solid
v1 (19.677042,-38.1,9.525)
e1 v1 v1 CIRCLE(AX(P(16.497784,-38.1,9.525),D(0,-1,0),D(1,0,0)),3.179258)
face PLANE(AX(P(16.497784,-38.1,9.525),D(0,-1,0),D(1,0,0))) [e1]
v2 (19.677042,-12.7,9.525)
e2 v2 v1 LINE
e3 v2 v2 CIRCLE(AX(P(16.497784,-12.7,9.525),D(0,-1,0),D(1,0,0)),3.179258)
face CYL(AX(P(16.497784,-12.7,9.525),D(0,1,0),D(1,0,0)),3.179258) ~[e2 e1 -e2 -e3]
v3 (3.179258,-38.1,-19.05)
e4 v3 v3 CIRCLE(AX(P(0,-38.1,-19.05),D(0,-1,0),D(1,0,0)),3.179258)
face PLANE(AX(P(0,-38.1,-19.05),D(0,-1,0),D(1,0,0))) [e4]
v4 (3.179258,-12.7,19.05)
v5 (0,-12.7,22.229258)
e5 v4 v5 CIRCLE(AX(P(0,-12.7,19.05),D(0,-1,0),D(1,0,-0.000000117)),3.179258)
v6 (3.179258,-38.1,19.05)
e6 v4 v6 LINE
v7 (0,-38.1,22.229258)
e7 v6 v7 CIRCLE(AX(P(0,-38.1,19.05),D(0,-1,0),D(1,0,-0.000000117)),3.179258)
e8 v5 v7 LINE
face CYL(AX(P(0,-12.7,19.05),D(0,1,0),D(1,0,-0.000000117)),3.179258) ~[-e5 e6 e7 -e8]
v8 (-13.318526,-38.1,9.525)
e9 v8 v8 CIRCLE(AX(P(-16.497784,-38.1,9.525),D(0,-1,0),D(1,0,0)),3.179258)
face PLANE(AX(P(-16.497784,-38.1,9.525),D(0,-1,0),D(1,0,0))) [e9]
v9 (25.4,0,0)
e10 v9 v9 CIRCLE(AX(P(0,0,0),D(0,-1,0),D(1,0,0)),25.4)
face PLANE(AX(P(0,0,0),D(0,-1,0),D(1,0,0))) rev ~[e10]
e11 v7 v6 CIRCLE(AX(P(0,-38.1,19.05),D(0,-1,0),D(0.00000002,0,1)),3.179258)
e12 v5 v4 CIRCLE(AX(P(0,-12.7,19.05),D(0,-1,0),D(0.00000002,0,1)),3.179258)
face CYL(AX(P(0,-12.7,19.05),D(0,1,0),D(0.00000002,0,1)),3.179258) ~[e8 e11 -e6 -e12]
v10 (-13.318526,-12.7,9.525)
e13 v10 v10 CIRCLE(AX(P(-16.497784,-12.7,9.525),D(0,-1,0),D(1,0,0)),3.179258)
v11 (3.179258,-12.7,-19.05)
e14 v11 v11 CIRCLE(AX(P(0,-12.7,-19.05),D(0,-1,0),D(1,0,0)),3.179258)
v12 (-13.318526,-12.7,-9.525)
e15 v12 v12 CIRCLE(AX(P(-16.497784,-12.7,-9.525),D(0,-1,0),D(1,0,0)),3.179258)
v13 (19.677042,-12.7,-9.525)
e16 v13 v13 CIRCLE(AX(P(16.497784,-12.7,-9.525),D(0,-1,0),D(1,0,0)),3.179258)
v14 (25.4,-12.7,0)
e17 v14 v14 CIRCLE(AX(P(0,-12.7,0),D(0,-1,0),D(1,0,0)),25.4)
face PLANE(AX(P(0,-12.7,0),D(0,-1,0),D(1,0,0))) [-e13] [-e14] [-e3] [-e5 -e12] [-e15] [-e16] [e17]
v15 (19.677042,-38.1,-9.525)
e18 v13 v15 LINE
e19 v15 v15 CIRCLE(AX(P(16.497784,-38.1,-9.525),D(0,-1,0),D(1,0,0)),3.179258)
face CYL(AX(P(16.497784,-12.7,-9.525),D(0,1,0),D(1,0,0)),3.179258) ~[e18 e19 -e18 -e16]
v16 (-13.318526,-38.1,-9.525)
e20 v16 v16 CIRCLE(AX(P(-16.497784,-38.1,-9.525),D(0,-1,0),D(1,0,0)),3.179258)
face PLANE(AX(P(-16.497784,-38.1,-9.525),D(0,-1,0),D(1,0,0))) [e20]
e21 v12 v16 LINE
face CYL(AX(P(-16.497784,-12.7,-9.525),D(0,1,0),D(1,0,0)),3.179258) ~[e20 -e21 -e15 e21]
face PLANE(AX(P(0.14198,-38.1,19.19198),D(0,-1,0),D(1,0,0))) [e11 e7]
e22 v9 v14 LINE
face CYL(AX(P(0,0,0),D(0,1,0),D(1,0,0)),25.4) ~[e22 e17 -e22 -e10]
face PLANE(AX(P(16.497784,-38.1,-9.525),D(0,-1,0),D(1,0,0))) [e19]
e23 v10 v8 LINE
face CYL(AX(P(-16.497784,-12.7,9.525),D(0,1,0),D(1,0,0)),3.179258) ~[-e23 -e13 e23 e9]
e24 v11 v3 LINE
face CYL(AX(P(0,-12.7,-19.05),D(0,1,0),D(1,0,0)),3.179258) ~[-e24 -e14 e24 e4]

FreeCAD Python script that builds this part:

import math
import FreeCAD as App
import Part
import Sketcher
from FreeCAD import Vector
Q = App.Units.Quantity

doc = App.newDocument("Part")
body = doc.addObject("PartDesign::Body", "Body")

# Sketch on XZ plane
sketch1 = body.newObject("Sketcher::SketchObject", "Sketch")
sketch1.AttachmentSupport = (doc.getObject("XZ_Plane"), [""])
sketch1.MapMode = "FlatFace"
sketch1.addGeometry(Part.Circle(Vector(0, 0, 0), Vector(0, 0, 1), 25.4), False)
sketch1.addConstraint([
    Sketcher.Constraint("Coincident", 0, 3, -1, 1),
    Sketcher.Constraint("Diameter", 0, Q("2 in")),
])
pad1 = body.newObject("PartDesign::Pad", "Pad")
pad1.Profile = sketch1
pad1.Length = Q("0.5 in")

# Sketch on XZ plane
sketch2 = body.newObject("Sketcher::SketchObject", "Sketch001")
sketch2.AttachmentSupport = (doc.getObject("XZ_Plane"), [""])
sketch2.MapMode = "FlatFace"
sketch2.AttachmentOffset = App.Placement(Vector(0, 0, 0.5 * 25.4), App.Rotation())
sketch2.addGeometry([
    Part.Circle(Vector(-16.497784, 9.525, 0), Vector(0, 0, 1), 3.179258),  # 0
    Part.ArcOfCircle(Part.Circle(Vector(0, 19.05, 0), Vector(0, 0, 1), 3.179258), math.radians(-0.000007), math.radians(90.000007)),  # 1
    Part.ArcOfCircle(Part.Circle(Vector(0, 19.05, 0), Vector(0, 0, 1), 3.179258), math.radians(89.999999), math.radians(360.000001)),  # 2
    Part.Circle(Vector(16.497784, 9.525, 0), Vector(0, 0, 1), 3.179258),  # 3
    Part.Circle(Vector(16.497784, -9.525, 0), Vector(0, 0, 1), 3.179258),  # 4
    Part.Circle(Vector(0, -19.05, 0), Vector(0, 0, 1), 3.179258),  # 5
    Part.Circle(Vector(-16.497784, -9.525, 0), Vector(0, 0, 1), 3.179258),  # 6
], False)
sketch2.addConstraint([
    Sketcher.Constraint("Tangent", 1, 1, 2, 2),
    Sketcher.Constraint("Coincident", 2, 1, 1, 2),
    Sketcher.Constraint("Equal", 0, 1),
    Sketcher.Constraint("Equal", 2, 3),
    Sketcher.Constraint("Equal", 3, 4),
    Sketcher.Constraint("Equal", 4, 5),
    Sketcher.Constraint("Equal", 5, 6),
    Sketcher.Constraint("Symmetric", 0, 3, 4, 3, -1, 1),
    Sketcher.Constraint("Symmetric", 1, 3, 5, 3, -1, 1),
    Sketcher.Constraint("Symmetric", 3, 3, 6, 3, -1, 1),
    Sketcher.Constraint("Symmetric", 0, 3, 3, 3, -2),
    Sketcher.Constraint("PointOnObject", 1, 3, -2),
    Sketcher.Constraint("PointOnObject", 2, 1, -2),
    Sketcher.Constraint("Horizontal", 2, 3, 1, 1),
    Sketcher.Constraint("DistanceY", 5, 3, 2, 3, Q("1.5 in")),
    Sketcher.Constraint("DistanceY", 4, 3, 3, 3, Q("0.75 in")),
    Sketcher.Constraint("Radius", 2, Q("3.179258 mm")),
    Sketcher.Constraint("DistanceX", 0, 3, 1, 1, Q("19.677042 mm")),
])
pad2 = body.newObject("PartDesign::Pad", "Pad001")
pad2.Profile = sketch2
pad2.Length = Q("1 in")

doc.recompute()
